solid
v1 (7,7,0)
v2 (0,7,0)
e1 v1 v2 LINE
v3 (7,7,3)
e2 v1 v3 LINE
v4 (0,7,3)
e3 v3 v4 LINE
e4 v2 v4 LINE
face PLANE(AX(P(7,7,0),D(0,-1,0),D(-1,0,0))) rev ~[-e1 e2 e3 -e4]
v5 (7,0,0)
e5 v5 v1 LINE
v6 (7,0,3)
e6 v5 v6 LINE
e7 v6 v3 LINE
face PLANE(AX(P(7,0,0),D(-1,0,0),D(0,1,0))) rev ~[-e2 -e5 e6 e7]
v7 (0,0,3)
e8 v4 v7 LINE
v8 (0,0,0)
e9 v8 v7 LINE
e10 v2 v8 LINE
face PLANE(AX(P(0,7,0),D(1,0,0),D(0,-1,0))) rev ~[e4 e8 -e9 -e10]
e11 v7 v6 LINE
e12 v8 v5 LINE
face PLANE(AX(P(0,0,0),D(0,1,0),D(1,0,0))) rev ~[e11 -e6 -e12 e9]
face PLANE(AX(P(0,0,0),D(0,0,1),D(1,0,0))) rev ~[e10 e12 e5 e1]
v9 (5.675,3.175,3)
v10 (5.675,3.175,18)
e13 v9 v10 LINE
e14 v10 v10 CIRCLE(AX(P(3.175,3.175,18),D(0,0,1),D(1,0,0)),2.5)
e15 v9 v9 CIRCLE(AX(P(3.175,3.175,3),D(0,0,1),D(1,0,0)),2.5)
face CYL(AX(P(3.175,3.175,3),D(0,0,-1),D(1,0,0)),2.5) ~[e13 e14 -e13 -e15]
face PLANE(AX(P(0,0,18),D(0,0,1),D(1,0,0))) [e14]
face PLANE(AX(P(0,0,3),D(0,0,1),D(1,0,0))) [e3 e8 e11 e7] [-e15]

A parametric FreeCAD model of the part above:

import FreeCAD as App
import Part
import Sketcher
Q = App.Units.Quantity


def add_polygon(sketch, points):
    """Adds a closed chain of lines whose ends are joined by coincident constraints."""
    first, n = sketch.GeometryCount, len(points)
    for a, b in zip(points, points[1:] + points[:1]):
        sketch.addGeometry(Part.LineSegment(App.Vector(*a, 0), App.Vector(*b, 0)), False)
    for i in range(n):
        sketch.addConstraint(Sketcher.Constraint("Coincident", first + i, 2, first + (i + 1) % n, 1))

doc = App.newDocument("Part")
body = doc.addObject("PartDesign::Body", "Body")

sketch1 = body.newObject("Sketcher::SketchObject", "Sketch")
sketch1.AttachmentSupport = (doc.getObject("XY_Plane"), [""])
sketch1.MapMode = "FlatFace"
add_polygon(sketch1, [(0, 7), (0, 0), (7, 0), (7, 7)])
sketch1.addConstraint(Sketcher.Constraint("Vertical", 0))
sketch1.addConstraint(Sketcher.Constraint("Horizontal", 1))
sketch1.addConstraint(Sketcher.Constraint("Vertical", 2))
sketch1.addConstraint(Sketcher.Constraint("Horizontal", 3))
sketch1.addConstraint(Sketcher.Constraint("Coincident", 0, 2, -1, 1))
sketch1.addConstraint(Sketcher.Constraint("Equal", 3, 0))
sketch1.addConstraint(Sketcher.Constraint("DistanceX", 1, 1, 1, 2, Q("7 mm")))
pad1 = body.newObject("PartDesign::Pad", "Pad")
pad1.Profile = sketch1
pad1.Length = 3

sketch2 = body.newObject("Sketcher::SketchObject", "Sketch001")
sketch2.AttachmentSupport = (doc.getObject("XY_Plane"), [""])
sketch2.MapMode = "FlatFace"
sketch2.AttachmentOffset = App.Placement(App.Vector(0, 0, 3), App.Rotation())
sketch2.addGeometry(Part.Circle(App.Vector(3.175, 3.175, 0), App.Vector(0, 0, 1), 2.5), False)
sketch2.addConstraint(Sketcher.Constraint("Diameter", 0, Q("5 mm")))
sketch2.addConstraint(Sketcher.Constraint("DistanceX", -1, 1, 0, 3, Q("3.175 mm")))
sketch2.addConstraint(Sketcher.Constraint("DistanceY", -1, 1, 0, 3, Q("3.175 mm")))
pad2 = body.newObject("PartDesign::Pad", "Pad001")
pad2.Profile = sketch2
pad2.Length = 15

doc.recompute()
